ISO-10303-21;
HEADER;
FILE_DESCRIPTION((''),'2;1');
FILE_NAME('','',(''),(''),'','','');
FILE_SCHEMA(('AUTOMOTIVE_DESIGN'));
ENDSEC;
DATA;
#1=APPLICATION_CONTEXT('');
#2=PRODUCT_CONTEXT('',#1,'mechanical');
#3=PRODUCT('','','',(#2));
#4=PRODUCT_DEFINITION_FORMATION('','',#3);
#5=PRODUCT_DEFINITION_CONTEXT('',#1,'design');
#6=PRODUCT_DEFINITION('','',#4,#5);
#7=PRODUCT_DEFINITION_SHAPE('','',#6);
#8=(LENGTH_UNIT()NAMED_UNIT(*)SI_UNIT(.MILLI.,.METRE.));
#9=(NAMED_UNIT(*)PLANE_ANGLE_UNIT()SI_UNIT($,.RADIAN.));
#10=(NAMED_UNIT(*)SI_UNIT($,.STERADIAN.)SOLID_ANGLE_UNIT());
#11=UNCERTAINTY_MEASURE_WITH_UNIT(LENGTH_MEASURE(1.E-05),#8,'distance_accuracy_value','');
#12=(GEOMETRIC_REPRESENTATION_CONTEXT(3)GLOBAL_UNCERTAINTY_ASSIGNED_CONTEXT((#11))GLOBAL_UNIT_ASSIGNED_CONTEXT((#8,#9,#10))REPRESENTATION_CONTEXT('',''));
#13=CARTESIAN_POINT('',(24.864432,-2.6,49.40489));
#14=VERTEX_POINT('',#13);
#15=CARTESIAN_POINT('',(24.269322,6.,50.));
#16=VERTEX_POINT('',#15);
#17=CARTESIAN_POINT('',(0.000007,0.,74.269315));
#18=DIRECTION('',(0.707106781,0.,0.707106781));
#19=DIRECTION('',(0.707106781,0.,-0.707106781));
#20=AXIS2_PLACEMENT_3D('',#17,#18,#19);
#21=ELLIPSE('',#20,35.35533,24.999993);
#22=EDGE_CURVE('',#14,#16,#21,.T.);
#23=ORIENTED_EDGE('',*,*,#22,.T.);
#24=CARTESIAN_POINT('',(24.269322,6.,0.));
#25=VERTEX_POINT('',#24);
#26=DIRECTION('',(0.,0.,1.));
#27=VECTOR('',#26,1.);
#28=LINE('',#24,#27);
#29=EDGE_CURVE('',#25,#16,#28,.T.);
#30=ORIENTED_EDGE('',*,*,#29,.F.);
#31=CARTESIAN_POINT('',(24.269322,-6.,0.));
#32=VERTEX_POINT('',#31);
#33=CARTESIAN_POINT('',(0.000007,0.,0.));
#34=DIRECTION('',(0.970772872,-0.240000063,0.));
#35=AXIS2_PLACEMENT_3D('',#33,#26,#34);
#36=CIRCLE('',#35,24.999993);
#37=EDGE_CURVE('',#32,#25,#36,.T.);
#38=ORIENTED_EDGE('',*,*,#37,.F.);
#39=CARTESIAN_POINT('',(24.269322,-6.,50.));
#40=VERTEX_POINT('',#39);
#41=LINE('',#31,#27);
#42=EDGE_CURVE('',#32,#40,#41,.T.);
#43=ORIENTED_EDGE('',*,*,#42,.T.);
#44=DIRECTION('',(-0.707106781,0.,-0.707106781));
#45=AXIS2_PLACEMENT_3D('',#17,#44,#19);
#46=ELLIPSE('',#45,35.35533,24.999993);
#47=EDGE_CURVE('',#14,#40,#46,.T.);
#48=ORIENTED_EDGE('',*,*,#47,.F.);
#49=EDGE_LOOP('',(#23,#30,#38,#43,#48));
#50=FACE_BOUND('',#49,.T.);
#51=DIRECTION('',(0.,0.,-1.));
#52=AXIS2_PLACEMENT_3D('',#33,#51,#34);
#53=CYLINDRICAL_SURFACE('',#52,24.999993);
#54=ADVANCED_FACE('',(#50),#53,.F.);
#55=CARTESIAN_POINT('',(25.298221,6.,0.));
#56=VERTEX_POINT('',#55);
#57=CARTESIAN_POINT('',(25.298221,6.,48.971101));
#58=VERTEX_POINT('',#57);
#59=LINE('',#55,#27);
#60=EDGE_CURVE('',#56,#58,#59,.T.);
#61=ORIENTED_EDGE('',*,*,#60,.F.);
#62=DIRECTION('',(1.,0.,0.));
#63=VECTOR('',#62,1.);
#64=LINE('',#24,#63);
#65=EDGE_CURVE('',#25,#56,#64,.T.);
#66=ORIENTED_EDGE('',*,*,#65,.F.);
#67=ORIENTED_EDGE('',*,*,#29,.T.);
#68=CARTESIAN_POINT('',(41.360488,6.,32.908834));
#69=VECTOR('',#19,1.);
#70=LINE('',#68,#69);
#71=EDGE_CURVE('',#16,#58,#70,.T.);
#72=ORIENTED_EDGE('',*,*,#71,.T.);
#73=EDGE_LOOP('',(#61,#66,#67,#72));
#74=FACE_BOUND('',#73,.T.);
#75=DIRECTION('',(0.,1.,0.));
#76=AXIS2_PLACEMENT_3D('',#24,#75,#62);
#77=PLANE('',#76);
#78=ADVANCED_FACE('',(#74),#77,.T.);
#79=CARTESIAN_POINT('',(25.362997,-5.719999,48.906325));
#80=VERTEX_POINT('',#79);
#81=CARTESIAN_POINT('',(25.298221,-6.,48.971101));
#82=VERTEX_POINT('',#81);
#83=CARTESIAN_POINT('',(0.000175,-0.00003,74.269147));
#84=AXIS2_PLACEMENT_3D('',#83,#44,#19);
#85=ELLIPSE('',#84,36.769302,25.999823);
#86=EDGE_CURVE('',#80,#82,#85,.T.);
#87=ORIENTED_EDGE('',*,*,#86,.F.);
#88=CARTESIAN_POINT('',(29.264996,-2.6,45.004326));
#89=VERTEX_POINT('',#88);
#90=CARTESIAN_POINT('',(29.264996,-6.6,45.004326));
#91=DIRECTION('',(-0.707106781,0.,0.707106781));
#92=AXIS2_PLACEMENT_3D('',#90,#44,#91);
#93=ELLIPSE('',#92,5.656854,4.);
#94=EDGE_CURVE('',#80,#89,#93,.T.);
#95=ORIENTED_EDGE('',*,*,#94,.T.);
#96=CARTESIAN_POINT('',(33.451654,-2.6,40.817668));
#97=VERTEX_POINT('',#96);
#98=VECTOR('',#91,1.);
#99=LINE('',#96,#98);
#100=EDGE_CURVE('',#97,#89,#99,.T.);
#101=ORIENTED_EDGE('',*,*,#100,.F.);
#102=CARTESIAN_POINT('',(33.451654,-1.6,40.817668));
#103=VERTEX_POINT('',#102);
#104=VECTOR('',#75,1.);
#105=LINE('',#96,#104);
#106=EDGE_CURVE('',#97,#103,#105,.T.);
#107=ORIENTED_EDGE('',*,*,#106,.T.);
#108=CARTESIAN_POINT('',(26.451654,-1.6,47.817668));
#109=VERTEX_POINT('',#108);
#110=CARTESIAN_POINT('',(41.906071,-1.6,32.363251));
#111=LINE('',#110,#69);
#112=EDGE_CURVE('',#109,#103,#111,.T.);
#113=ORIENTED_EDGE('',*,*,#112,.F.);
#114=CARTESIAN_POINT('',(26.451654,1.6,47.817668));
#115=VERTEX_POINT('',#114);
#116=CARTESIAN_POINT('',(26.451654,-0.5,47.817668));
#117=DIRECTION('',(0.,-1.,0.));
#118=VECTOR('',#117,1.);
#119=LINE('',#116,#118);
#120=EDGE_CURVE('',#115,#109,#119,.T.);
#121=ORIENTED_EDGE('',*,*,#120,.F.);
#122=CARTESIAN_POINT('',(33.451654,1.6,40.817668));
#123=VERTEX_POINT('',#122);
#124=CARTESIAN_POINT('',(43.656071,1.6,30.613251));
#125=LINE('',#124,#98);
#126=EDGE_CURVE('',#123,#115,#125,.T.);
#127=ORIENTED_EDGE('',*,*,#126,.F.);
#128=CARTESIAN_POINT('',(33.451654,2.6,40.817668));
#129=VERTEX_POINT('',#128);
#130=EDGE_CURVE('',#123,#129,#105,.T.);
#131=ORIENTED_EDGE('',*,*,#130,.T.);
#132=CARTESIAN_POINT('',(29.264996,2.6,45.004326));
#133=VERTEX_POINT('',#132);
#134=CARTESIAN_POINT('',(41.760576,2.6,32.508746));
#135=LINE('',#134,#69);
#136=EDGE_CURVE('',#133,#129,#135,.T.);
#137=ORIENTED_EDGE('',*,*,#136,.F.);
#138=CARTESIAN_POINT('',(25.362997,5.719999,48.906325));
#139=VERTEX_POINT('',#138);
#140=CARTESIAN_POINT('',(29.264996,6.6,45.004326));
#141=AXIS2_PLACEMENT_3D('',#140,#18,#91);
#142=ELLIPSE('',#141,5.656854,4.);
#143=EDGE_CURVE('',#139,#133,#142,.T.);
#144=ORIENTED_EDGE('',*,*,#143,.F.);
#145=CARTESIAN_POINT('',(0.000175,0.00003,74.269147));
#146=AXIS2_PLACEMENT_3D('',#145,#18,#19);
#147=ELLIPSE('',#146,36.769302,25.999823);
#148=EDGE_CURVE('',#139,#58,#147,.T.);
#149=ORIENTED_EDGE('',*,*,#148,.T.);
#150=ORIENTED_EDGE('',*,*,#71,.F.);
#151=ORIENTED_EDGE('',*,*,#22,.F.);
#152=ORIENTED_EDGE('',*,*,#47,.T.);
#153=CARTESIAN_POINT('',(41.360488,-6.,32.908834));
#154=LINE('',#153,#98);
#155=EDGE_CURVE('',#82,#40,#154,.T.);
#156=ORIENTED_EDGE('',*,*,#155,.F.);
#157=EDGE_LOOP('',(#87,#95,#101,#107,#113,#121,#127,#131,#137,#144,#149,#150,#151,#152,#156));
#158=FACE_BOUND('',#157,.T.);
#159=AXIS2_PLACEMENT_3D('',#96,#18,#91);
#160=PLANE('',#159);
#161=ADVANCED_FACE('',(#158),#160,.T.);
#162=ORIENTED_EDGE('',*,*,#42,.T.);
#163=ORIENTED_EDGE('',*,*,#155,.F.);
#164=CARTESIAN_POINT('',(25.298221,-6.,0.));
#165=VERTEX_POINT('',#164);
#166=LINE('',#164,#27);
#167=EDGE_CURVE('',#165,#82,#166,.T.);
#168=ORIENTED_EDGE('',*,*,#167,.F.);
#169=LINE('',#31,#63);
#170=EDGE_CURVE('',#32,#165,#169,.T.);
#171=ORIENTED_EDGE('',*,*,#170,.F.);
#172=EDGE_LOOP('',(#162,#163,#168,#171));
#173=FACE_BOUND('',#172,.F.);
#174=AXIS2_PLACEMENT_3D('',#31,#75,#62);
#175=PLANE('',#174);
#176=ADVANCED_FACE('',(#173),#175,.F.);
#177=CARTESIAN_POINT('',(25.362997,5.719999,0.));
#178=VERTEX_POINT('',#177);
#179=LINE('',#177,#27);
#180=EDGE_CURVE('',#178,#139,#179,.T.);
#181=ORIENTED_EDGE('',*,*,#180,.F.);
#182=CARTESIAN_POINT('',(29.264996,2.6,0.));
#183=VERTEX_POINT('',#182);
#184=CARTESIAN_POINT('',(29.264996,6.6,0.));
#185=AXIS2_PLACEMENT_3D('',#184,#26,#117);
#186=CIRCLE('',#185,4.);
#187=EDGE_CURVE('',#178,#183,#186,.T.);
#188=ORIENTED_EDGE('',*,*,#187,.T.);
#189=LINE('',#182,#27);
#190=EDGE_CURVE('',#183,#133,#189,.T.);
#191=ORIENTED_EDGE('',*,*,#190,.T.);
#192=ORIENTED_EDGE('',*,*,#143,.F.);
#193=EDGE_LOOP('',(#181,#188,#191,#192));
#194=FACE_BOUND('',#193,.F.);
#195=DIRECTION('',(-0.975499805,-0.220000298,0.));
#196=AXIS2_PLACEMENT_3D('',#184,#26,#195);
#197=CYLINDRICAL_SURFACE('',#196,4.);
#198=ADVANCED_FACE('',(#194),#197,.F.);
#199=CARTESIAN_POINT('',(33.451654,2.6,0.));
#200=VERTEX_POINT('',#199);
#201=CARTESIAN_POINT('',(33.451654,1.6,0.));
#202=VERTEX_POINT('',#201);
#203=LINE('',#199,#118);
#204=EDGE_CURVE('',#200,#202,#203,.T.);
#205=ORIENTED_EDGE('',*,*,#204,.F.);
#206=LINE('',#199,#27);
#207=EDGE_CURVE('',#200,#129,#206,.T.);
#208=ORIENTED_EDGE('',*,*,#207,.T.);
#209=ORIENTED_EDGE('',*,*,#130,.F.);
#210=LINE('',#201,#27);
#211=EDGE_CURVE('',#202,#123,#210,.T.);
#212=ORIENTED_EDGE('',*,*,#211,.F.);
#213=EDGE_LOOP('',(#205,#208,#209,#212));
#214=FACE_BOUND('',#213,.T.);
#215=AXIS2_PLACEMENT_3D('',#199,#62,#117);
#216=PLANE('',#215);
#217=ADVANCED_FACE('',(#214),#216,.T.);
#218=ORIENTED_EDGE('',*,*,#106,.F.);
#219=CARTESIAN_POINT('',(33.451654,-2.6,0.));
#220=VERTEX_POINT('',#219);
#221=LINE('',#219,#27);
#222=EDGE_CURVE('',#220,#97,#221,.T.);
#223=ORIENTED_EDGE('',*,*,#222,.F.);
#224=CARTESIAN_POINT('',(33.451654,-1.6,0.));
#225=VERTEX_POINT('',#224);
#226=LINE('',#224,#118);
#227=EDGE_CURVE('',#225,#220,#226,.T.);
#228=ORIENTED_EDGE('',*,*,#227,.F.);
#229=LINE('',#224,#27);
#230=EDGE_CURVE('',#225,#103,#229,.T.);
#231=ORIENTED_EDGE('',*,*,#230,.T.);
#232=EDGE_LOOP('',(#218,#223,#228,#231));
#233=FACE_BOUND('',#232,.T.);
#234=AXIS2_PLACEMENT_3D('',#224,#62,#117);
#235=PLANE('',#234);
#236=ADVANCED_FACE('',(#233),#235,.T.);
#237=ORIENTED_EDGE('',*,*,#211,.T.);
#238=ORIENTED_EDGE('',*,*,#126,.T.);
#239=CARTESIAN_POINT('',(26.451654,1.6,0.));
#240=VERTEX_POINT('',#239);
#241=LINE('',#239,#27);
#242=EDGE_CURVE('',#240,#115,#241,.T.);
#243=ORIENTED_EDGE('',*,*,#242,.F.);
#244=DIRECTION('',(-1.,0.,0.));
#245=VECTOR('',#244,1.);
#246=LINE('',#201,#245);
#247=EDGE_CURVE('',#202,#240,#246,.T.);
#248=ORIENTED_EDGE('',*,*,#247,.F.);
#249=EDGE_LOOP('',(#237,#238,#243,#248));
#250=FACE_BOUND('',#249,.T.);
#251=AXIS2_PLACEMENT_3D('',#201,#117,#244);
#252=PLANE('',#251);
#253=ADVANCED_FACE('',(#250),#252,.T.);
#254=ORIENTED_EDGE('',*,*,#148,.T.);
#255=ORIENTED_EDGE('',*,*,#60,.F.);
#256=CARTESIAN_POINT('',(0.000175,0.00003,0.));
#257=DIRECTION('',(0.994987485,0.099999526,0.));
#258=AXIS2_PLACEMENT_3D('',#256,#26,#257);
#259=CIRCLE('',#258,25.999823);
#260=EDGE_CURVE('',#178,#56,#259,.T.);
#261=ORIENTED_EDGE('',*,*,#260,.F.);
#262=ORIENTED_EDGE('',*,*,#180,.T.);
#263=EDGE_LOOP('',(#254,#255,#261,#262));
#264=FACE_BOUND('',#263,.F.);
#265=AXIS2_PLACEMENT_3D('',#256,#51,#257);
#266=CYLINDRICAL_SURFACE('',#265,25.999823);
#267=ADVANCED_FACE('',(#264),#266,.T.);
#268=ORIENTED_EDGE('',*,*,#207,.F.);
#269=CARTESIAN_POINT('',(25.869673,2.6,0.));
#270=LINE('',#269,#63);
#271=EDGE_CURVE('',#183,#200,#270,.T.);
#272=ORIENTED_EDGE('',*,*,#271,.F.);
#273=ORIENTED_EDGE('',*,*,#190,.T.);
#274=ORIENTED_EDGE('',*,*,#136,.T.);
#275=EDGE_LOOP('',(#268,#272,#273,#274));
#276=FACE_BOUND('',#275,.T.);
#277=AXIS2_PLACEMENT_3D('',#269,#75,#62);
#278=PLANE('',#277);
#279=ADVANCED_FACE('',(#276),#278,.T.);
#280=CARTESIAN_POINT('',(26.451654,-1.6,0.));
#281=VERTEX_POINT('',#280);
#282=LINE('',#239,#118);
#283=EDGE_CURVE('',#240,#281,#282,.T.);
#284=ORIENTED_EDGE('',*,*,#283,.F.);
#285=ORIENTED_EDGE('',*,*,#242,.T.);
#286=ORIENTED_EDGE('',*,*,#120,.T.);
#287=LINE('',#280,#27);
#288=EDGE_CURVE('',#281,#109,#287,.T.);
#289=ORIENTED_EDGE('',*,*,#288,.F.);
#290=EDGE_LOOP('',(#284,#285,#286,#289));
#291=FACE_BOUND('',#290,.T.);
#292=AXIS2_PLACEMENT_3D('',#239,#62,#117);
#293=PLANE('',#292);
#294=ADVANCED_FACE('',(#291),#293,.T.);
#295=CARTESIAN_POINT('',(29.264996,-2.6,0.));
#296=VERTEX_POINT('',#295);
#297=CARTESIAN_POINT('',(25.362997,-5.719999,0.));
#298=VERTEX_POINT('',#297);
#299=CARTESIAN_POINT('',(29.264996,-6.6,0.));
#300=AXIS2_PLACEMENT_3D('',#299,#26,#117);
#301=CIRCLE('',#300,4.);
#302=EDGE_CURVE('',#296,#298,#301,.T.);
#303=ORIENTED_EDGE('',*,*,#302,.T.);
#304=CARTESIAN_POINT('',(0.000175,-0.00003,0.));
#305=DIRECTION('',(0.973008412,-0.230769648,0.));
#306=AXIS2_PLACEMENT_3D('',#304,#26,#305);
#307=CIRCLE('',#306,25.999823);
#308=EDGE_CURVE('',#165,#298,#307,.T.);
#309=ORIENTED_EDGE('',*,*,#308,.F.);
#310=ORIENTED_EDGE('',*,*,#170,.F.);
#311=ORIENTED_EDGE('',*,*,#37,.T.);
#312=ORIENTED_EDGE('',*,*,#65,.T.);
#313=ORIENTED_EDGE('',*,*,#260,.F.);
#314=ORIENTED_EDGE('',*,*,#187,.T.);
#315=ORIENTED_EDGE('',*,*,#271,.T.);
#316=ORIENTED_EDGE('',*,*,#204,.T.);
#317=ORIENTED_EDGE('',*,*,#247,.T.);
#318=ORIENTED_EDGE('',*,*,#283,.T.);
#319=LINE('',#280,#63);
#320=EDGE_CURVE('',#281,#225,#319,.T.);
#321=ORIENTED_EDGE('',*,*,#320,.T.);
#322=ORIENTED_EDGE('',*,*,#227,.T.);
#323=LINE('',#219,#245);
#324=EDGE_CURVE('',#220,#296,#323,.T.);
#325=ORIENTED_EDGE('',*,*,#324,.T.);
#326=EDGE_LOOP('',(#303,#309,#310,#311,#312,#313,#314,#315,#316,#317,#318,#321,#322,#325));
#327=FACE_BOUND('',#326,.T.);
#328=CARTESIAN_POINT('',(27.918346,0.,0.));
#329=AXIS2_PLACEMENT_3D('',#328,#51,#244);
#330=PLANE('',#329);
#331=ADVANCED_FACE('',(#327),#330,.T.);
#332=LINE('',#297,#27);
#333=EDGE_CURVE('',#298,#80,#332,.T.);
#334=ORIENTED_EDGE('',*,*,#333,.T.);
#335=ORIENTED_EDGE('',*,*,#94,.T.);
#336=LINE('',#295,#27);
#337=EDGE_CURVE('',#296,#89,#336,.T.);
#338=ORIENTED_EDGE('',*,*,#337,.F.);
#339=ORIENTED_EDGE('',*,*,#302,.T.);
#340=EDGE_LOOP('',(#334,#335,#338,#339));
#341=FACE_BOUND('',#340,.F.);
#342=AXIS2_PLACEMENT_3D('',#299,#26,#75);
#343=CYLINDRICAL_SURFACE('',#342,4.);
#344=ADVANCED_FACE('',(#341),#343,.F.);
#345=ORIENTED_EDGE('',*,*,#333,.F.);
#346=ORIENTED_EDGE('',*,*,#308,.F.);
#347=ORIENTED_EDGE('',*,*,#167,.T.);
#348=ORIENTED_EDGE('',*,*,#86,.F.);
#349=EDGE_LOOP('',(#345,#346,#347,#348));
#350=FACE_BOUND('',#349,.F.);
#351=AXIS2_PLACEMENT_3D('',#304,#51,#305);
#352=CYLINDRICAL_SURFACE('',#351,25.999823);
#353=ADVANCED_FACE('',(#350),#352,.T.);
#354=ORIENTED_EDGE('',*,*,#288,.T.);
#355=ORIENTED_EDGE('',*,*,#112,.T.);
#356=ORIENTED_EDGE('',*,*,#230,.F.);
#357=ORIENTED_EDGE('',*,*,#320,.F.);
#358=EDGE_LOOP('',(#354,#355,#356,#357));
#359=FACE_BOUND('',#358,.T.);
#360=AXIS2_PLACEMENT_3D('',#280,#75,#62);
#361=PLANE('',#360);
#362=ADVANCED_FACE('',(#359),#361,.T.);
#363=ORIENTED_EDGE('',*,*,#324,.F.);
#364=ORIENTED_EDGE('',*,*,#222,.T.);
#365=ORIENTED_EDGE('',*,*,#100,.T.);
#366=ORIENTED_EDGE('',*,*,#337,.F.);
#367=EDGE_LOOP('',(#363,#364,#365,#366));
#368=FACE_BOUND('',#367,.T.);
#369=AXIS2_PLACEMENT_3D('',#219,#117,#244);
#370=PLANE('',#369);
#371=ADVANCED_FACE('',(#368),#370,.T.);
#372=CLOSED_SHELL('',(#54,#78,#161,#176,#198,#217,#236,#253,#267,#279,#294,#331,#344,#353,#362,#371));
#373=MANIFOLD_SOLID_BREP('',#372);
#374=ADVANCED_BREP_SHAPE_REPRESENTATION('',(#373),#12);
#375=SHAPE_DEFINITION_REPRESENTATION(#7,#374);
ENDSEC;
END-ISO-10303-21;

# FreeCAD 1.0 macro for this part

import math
import FreeCAD as App
import Part
import Sketcher
from FreeCAD import Vector


def edges_at(feature, points):
    """Names of the edges that pass closest to the given points."""
    edges = feature.Shape.Edges
    near = lambda p: min(range(len(edges)), key=lambda i: edges[i].distToShape(Part.Vertex(*p))[0])
    return sorted({f"Edge{near(p) + 1}" for p in points})


def add_polygon(sketch, points):
    """Adds a closed chain of lines whose ends are joined by coincident constraints."""
    first, n = sketch.GeometryCount, len(points)
    for a, b in zip(points, points[1:] + points[:1]):
        sketch.addGeometry(Part.LineSegment(App.Vector(*a, 0), App.Vector(*b, 0)), False)
    for i in range(n):
        sketch.addConstraint(Sketcher.Constraint("Coincident", first + i, 2, first + (i + 1) % n, 1))

doc = App.newDocument("Part")
body = doc.addObject("PartDesign::Body", "Body")

# Sketch on XY plane
sketch1 = body.newObject("Sketcher::SketchObject", "Sketch")
sketch1.AttachmentSupport = (doc.getObject("XY_Plane"), [""])
sketch1.MapMode = "FlatFace"
sketch1.addGeometry([
    Part.ArcOfCircle(Part.Circle(Vector(0.000007, 0, 0), Vector(0, 0, 1), 24.999993), math.radians(-13.886544), math.radians(13.886544)),  # 0
    Part.LineSegment(Vector(24.269322, -6, 0), Vector(25.298221, -6, 0)),  # 1
    Part.ArcOfCircle(Part.Circle(Vector(0.000175, -0.00003, 0), Vector(0, 0, 1), 25.999823), math.radians(-13.342388), math.radians(-5.739143)),  # 2
    Part.LineSegment(Vector(25.869673, -2.6, 0), Vector(33.451654, -2.6, 0)),  # 3
    Part.LineSegment(Vector(33.451654, -2.6, 0), Vector(33.451654, -1.6, 0)),  # 4
    Part.LineSegment(Vector(33.451654, -1.6, 0), Vector(26.451654, -1.6, 0)),  # 5
    Part.LineSegment(Vector(26.451654, -1.6, 0), Vector(26.451654, 1.6, 0)),  # 6
    Part.LineSegment(Vector(26.451654, 1.6, 0), Vector(33.451654, 1.6, 0)),  # 7
    Part.LineSegment(Vector(33.451654, 1.6, 0), Vector(33.451654, 2.6, 0)),  # 8
    Part.LineSegment(Vector(33.451654, 2.6, 0), Vector(25.869673, 2.6, 0)),  # 9
    Part.ArcOfCircle(Part.Circle(Vector(0.000175, 0.00003, 0), Vector(0, 0, 1), 25.999823), math.radians(5.739143), math.radians(13.342388)),  # 10
    Part.LineSegment(Vector(25.298221, 6, 0), Vector(24.269322, 6, 0)),  # 11
], False)
sketch1.addConstraint([
    Sketcher.Constraint("Coincident", 0, 1, 1, 1),
    Sketcher.Constraint("Coincident", 1, 2, 2, 1),
    Sketcher.Constraint("Coincident", 2, 2, 3, 1),
    Sketcher.Constraint("Coincident", 3, 2, 4, 1),
    Sketcher.Constraint("Coincident", 4, 2, 5, 1),
    Sketcher.Constraint("Coincident", 5, 2, 6, 1),
    Sketcher.Constraint("Coincident", 6, 2, 7, 1),
    Sketcher.Constraint("Coincident", 7, 2, 8, 1),
    Sketcher.Constraint("Coincident", 8, 2, 9, 1),
    Sketcher.Constraint("Coincident", 9, 2, 10, 1),
    Sketcher.Constraint("Coincident", 10, 2, 11, 1),
    Sketcher.Constraint("Coincident", 11, 2, 0, 2),
    Sketcher.Constraint("Horizontal", 1),
    Sketcher.Constraint("Horizontal", 3),
    Sketcher.Constraint("Vertical", 4),
    Sketcher.Constraint("Horizontal", 5),
    Sketcher.Constraint("Vertical", 6),
    Sketcher.Constraint("Horizontal", 7),
    Sketcher.Constraint("Vertical", 8),
    Sketcher.Constraint("Horizontal", 9),
    Sketcher.Constraint("Horizontal", 11),
    Sketcher.Constraint("Coincident", 0, 3, -1, 1),
    Sketcher.Constraint("Equal", 2, 10),
    Sketcher.Constraint("Symmetric", 2, 3, 10, 3, -1),
    Sketcher.Constraint("Symmetric", 4, 2, 7, 2, -1),
    Sketcher.Constraint("Vertical", 2, 2, 9, 2),
    Sketcher.Constraint("Vertical", 1, 2, 10, 2),
    Sketcher.Constraint("DistanceX", 5, 2, 5, 1, 7.0),
    Sketcher.Constraint("DistanceY", 4, 1, 4, 2, 1.0),
    Sketcher.Constraint("DistanceY", 6, 1, 6, 2, 3.2),
    Sketcher.Constraint("DistanceY", 0, 1, -1, 1, 6.0),
    Sketcher.Constraint("DistanceX", 1, 1, 1, 2, 1.028899),
    Sketcher.Constraint("Radius", 0, 24.999993),
    Sketcher.Constraint("Radius", 2, 25.999823),
    Sketcher.Constraint("DistanceX", 3, 1, 3, 2, 7.581981),
    Sketcher.Constraint("DistanceX", 2, 3, 2, 2, 25.869498),
])
pad1 = body.newObject("PartDesign::Pad", "Pad")
pad1.Profile = sketch1
pad1.Length = 50
doc.recompute()

fillet = body.newObject("PartDesign::Fillet", "Fillet")
fillet.Base = (pad1, edges_at(pad1, [(25.87, -2.6, 25), (25.87, 2.6, 25)]))
fillet.Radius = 4

# Sketch on XZ plane
sketch2 = body.newObject("Sketcher::SketchObject", "Sketch001")
sketch2.AttachmentSupport = (doc.getObject("XZ_Plane"), [""])
sketch2.MapMode = "FlatFace"
sketch2.AttachmentOffset = App.Placement(Vector(0, 0, 2.6), App.Rotation())
add_polygon(sketch2, [(33, 41), (33, 50), (24, 50)])  # lines 0-2
sketch2.addConstraint([
    Sketcher.Constraint("Vertical", 0),
    Sketcher.Constraint("Horizontal", 1),
    Sketcher.Constraint("Equal", 1, 0),
    Sketcher.Constraint("DistanceY", -1, 1, 0, 2, 50.0),
    Sketcher.Constraint("DistanceX", 1, 2, 1, 1, 9.182332),
    Sketcher.Constraint("DistanceX", -1, 1, 1, 2, 24.269322),
])
pocket1 = body.newObject("PartDesign::Pocket", "Pocket")
pocket1.Profile = sketch2
pocket1.Type = "ThroughAll"
pocket1.Midplane = True

doc.recompute()
